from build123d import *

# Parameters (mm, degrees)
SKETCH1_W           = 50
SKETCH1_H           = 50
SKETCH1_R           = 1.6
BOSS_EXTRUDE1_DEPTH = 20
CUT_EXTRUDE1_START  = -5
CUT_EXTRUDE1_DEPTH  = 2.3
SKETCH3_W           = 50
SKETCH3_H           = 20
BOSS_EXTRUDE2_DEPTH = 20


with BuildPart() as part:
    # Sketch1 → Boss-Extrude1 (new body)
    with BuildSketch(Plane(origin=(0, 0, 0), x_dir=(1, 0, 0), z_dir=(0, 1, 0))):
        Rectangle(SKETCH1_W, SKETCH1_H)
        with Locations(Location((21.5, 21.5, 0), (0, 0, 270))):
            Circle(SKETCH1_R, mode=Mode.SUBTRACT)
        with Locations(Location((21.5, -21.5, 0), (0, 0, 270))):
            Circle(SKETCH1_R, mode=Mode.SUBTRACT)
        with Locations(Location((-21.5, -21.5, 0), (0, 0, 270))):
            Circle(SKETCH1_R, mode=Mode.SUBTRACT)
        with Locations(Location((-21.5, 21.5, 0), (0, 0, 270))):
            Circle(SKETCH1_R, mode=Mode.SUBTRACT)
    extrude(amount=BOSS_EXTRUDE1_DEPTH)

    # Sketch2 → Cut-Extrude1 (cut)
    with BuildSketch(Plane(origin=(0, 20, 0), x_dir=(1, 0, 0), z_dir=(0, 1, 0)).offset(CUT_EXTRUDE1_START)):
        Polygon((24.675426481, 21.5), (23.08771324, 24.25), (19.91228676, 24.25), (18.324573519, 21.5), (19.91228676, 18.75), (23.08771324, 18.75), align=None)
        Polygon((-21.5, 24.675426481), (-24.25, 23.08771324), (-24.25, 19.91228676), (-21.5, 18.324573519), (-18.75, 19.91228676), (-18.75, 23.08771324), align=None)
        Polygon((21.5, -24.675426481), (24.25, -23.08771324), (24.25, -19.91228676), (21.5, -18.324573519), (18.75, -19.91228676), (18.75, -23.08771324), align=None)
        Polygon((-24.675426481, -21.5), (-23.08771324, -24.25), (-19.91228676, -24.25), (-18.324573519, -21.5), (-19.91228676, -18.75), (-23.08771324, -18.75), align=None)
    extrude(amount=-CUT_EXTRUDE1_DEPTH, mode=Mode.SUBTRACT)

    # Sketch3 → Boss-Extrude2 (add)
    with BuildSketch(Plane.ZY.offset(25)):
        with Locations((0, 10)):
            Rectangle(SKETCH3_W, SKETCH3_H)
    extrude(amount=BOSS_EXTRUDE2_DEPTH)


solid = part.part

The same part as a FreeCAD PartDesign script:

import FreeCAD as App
import Part
import Sketcher

V = App.Vector
Q = App.Units.Quantity

doc = App.newDocument("Part")
body = doc.addObject("PartDesign::Body", "Body")

# Sketch on XZ plane
sketch1 = body.newObject("Sketcher::SketchObject", "Sketch")
sketch1.AttachmentSupport = (doc.getObject("XZ_Plane"), [""])
sketch1.MapMode = "FlatFace"
sketch1.addGeometry(Part.LineSegment(V(-25, -25, 0), V(-25, 25, 0)), False)
sketch1.addGeometry(Part.LineSegment(V(-25, 25, 0), V(25, 25, 0)), False)
sketch1.addGeometry(Part.LineSegment(V(25, 25, 0), V(25, -25, 0)), False)
sketch1.addGeometry(Part.LineSegment(V(25, -25, 0), V(-25, -25, 0)), False)
sketch1.addGeometry(Part.Circle(V(-21.5, 21.5, 0), V(0, 0, 1), 1.6), False)
sketch1.addGeometry(Part.Circle(V(21.5, 21.5, 0), V(0, 0, 1), 1.6), False)
sketch1.addGeometry(Part.Circle(V(-21.5, -21.5, 0), V(0, 0, 1), 1.6), False)
sketch1.addGeometry(Part.Circle(V(21.5, -21.5, 0), V(0, 0, 1), 1.6), False)
sketch1.addConstraint(Sketcher.Constraint("Coincident", 0, 2, 1, 1))
sketch1.addConstraint(Sketcher.Constraint("Coincident", 1, 2, 2, 1))
sketch1.addConstraint(Sketcher.Constraint("Coincident", 2, 2, 3, 1))
sketch1.addConstraint(Sketcher.Constraint("Coincident", 3, 2, 0, 1))
sketch1.addConstraint(Sketcher.Constraint("Vertical", 0))
sketch1.addConstraint(Sketcher.Constraint("Horizontal", 1))
sketch1.addConstraint(Sketcher.Constraint("Vertical", 2))
sketch1.addConstraint(Sketcher.Constraint("Horizontal", 3))
sketch1.addConstraint(Sketcher.Constraint("Equal", 4, 5))
sketch1.addConstraint(Sketcher.Constraint("Equal", 5, 6))
sketch1.addConstraint(Sketcher.Constraint("Equal", 6, 7))
sketch1.addConstraint(Sketcher.Constraint("Symmetric", 5, 3, 6, 3, -1, 1))
sketch1.addConstraint(Sketcher.Constraint("Symmetric", 4, 3, 7, 3, -1, 1))
sketch1.addConstraint(Sketcher.Constraint("Symmetric", 0, 2, 2, 2, -1, 1))
sketch1.addConstraint(Sketcher.Constraint("Symmetric", 4, 3, 5, 3, -2))
sketch1.addConstraint(Sketcher.Constraint("Equal", 3, 0))
sketch1.addConstraint(Sketcher.Constraint("Diameter", 4, 3.2))
sketch1.addConstraint(Sketcher.Constraint("DistanceX", 1, 1, 1, 2, 50.0))
sketch1.addConstraint(Sketcher.Constraint("DistanceX", 4, 3, 5, 3, 43.0))
sketch1.addConstraint(Sketcher.Constraint("DistanceY", 6, 3, 4, 3, 43.0))
pad1 = body.newObject("PartDesign::Pad", "Pad")
pad1.Profile = sketch1
pad1.Length = 20
pad1.Reversed = True

# Sketch on XZ plane
sketch2 = body.newObject("Sketcher::SketchObject", "Sketch001")
sketch2.AttachmentSupport = (doc.getObject("XZ_Plane"), [""])
sketch2.MapMode = "FlatFace"
sketch2.AttachmentOffset = App.Placement(V(0, 0, -15), App.Rotation())
sketch2.addGeometry(Part.LineSegment(V(24.7, -21.5, 0), V(23.1, -24.2, 0)), False)
sketch2.addGeometry(Part.LineSegment(V(23.1, -24.2, 0), V(19.9, -24.2, 0)), False)
sketch2.addGeometry(Part.LineSegment(V(19.9, -24.2, 0), V(18.3, -21.5, 0)), False)
sketch2.addGeometry(Part.LineSegment(V(18.3, -21.5, 0), V(19.9, -18.8, 0)), False)
sketch2.addGeometry(Part.LineSegment(V(19.9, -18.8, 0), V(23.1, -18.8, 0)), False)
sketch2.addGeometry(Part.LineSegment(V(23.1, -18.8, 0), V(24.7, -21.5, 0)), False)
sketch2.addGeometry(Part.LineSegment(V(-21.5, -24.7, 0), V(-24.2, -23.1, 0)), False)
sketch2.addGeometry(Part.LineSegment(V(-24.2, -23.1, 0), V(-24.2, -19.9, 0)), False)
sketch2.addGeometry(Part.LineSegment(V(-24.2, -19.9, 0), V(-21.5, -18.3, 0)), False)
sketch2.addGeometry(Part.LineSegment(V(-21.5, -18.3, 0), V(-18.8, -19.9, 0)), False)
sketch2.addGeometry(Part.LineSegment(V(-18.8, -19.9, 0), V(-18.8, -23.1, 0)), False)
sketch2.addGeometry(Part.LineSegment(V(-18.8, -23.1, 0), V(-21.5, -24.7, 0)), False)
sketch2.addGeometry(Part.LineSegment(V(21.5, 24.7, 0), V(24.2, 23.1, 0)), False)
sketch2.addGeometry(Part.LineSegment(V(24.2, 23.1, 0), V(24.2, 19.9, 0)), False)
sketch2.addGeometry(Part.LineSegment(V(24.2, 19.9, 0), V(21.5, 18.3, 0)), False)
sketch2.addGeometry(Part.LineSegment(V(21.5, 18.3, 0), V(18.8, 19.9, 0)), False)
sketch2.addGeometry(Part.LineSegment(V(18.8, 19.9, 0), V(18.8, 23.1, 0)), False)
sketch2.addGeometry(Part.LineSegment(V(18.8, 23.1, 0), V(21.5, 24.7, 0)), False)
sketch2.addGeometry(Part.LineSegment(V(-24.7, 21.5, 0), V(-23.1, 24.2, 0)), False)
sketch2.addGeometry(Part.LineSegment(V(-23.1, 24.2, 0), V(-19.9, 24.2, 0)), False)
sketch2.addGeometry(Part.LineSegment(V(-19.9, 24.2, 0), V(-18.3, 21.5, 0)), False)
sketch2.addGeometry(Part.LineSegment(V(-18.3, 21.5, 0), V(-19.9, 18.8, 0)), False)
sketch2.addGeometry(Part.LineSegment(V(-19.9, 18.8, 0), V(-23.1, 18.8, 0)), False)
sketch2.addGeometry(Part.LineSegment(V(-23.1, 18.8, 0), V(-24.7, 21.5, 0)), False)
sketch2.addConstraint(Sketcher.Constraint("Coincident", 0, 2, 1, 1))
sketch2.addConstraint(Sketcher.Constraint("Coincident", 1, 2, 2, 1))
sketch2.addConstraint(Sketcher.Constraint("Coincident", 2, 2, 3, 1))
sketch2.addConstraint(Sketcher.Constraint("Coincident", 3, 2, 4, 1))
sketch2.addConstraint(Sketcher.Constraint("Coincident", 4, 2, 5, 1))
sketch2.addConstraint(Sketcher.Constraint("Coincident", 5, 2, 0, 1))
sketch2.addConstraint(Sketcher.Constraint("Coincident", 6, 2, 7, 1))
sketch2.addConstraint(Sketcher.Constraint("Coincident", 7, 2, 8, 1))
sketch2.addConstraint(Sketcher.Constraint("Coincident", 8, 2, 9, 1))
sketch2.addConstraint(Sketcher.Constraint("Coincident", 9, 2, 10, 1))
sketch2.addConstraint(Sketcher.Constraint("Coincident", 10, 2, 11, 1))
sketch2.addConstraint(Sketcher.Constraint("Coincident", 11, 2, 6, 1))
sketch2.addConstraint(Sketcher.Constraint("Coincident", 12, 2, 13, 1))
sketch2.addConstraint(Sketcher.Constraint("Coincident", 13, 2, 14, 1))
sketch2.addConstraint(Sketcher.Constraint("Coincident", 14, 2, 15, 1))
sketch2.addConstraint(Sketcher.Constraint("Coincident", 15, 2, 16, 1))
sketch2.addConstraint(Sketcher.Constraint("Coincident", 16, 2, 17, 1))
sketch2.addConstraint(Sketcher.Constraint("Coincident", 17, 2, 12, 1))
sketch2.addConstraint(Sketcher.Constraint("Coincident", 18, 2, 19, 1))
sketch2.addConstraint(Sketcher.Constraint("Coincident", 19, 2, 20, 1))
sketch2.addConstraint(Sketcher.Constraint("Coincident", 20, 2, 21, 1))
sketch2.addConstraint(Sketcher.Constraint("Coincident", 21, 2, 22, 1))
sketch2.addConstraint(Sketcher.Constraint("Coincident", 22, 2, 23, 1))
sketch2.addConstraint(Sketcher.Constraint("Coincident", 23, 2, 18, 1))
sketch2.addConstraint(Sketcher.Constraint("Horizontal", 1))
sketch2.addConstraint(Sketcher.Constraint("Horizontal", 4))
sketch2.addConstraint(Sketcher.Constraint("Vertical", 7))
sketch2.addConstraint(Sketcher.Constraint("Vertical", 10))
sketch2.addConstraint(Sketcher.Constraint("Vertical", 13))
sketch2.addConstraint(Sketcher.Constraint("Vertical", 16))
sketch2.addConstraint(Sketcher.Constraint("Horizontal", 19))
sketch2.addConstraint(Sketcher.Constraint("Horizontal", 22))
sketch2.addConstraint(Sketcher.Constraint("Symmetric", 6, 2, 12, 2, -1, 1))
sketch2.addConstraint(Sketcher.Constraint("Symmetric", 8, 2, 14, 2, -1, 1))
sketch2.addConstraint(Sketcher.Constraint("Symmetric", 9, 2, 15, 2, -1, 1))
sketch2.addConstraint(Sketcher.Constraint("Symmetric", 11, 2, 17, 2, -1, 1))
sketch2.addConstraint(Sketcher.Constraint("Symmetric", 0, 2, 18, 2, -1, 1))
sketch2.addConstraint(Sketcher.Constraint("Symmetric", 2, 2, 20, 2, -1, 1))
sketch2.addConstraint(Sketcher.Constraint("Symmetric", 3, 2, 21, 2, -1, 1))
sketch2.addConstraint(Sketcher.Constraint("Symmetric", 5, 2, 23, 2, -1, 1))
sketch2.addConstraint(Sketcher.Constraint("Parallel", 0, 3))
sketch2.addConstraint(Sketcher.Constraint("Parallel", 2, 5))
sketch2.addConstraint(Sketcher.Constraint("Perpendicular", 3, 6))
sketch2.addConstraint(Sketcher.Constraint("Perpendicular", 5, 8))
sketch2.addConstraint(Sketcher.Constraint("Parallel", 6, 9))
sketch2.addConstraint(Sketcher.Constraint("Parallel", 8, 11))
sketch2.addConstraint(Sketcher.Constraint("Parallel", 11, 14))
sketch2.addConstraint(Sketcher.Constraint("Parallel", 14, 17))
sketch2.addConstraint(Sketcher.Constraint("Perpendicular", 17, 20))
sketch2.addConstraint(Sketcher.Constraint("Parallel", 20, 23))
sketch2.addConstraint(Sketcher.Constraint("Horizontal", 2, 2, 5, 2))
sketch2.addConstraint(Sketcher.Constraint("Horizontal", 7, 2, 9, 2))
sketch2.addConstraint(Sketcher.Constraint("Horizontal", 6, 2, 10, 2))
sketch2.addConstraint(Sketcher.Constraint("Vertical", 1, 2, 3, 2))
sketch2.addConstraint(Sketcher.Constraint("Vertical", 0, 2, 4, 2))
sketch2.addConstraint(Sketcher.Constraint("Equal", 22, 7))
sketch2.addConstraint(Sketcher.Constraint("Equal", 5, 6))
sketch2.addConstraint(Sketcher.Constraint("Angle", 0, Q("-120 deg")))
sketch2.addConstraint(Sketcher.Constraint("DistanceY", 2, 2, -1, 1, 21.5))
sketch2.addConstraint(Sketcher.Constraint("DistanceX", 8, 2, -1, 1, 21.5))
sketch2.addConstraint(Sketcher.Constraint("DistanceY", 1, 2, 3, 2, 5.5))
sketch2.addConstraint(Sketcher.Constraint("DistanceX", 1, 2, 1, 1, 3.175426))
sketch2.addConstraint(Sketcher.Constraint("DistanceX", -1, 1, 0, 2, 23.087713))
sketch2.addConstraint(Sketcher.Constraint("DistanceY", 6, 2, -1, 1, 23.087713))
pocket1 = body.newObject("PartDesign::Pocket", "Pocket")
pocket1.Profile = sketch2
pocket1.Length = 2.3
pocket1.Reversed = True

# Sketch on YZ plane
sketch3 = body.newObject("Sketcher::SketchObject", "Sketch002")
sketch3.AttachmentSupport = (doc.getObject("YZ_Plane"), [""])
sketch3.MapMode = "FlatFace"
sketch3.AttachmentOffset = App.Placement(V(0, 0, -25), App.Rotation())
sketch3.addGeometry(Part.LineSegment(V(20, -25, 0), V(0, -25, 0)), False)
sketch3.addGeometry(Part.LineSegment(V(0, -25, 0), V(0, 25, 0)), False)
sketch3.addGeometry(Part.LineSegment(V(0, 25, 0), V(20, 25, 0)), False)
sketch3.addGeometry(Part.LineSegment(V(20, 25, 0), V(20, -25, 0)), False)
sketch3.addConstraint(Sketcher.Constraint("Coincident", 0, 2, 1, 1))
sketch3.addConstraint(Sketcher.Constraint("Coincident", 1, 2, 2, 1))
sketch3.addConstraint(Sketcher.Constraint("Coincident", 2, 2, 3, 1))
sketch3.addConstraint(Sketcher.Constraint("Coincident", 3, 2, 0, 1))
sketch3.addConstraint(Sketcher.Constraint("Horizontal", 0))
sketch3.addConstraint(Sketcher.Constraint("Vertical", 1))
sketch3.addConstraint(Sketcher.Constraint("Horizontal", 2))
sketch3.addConstraint(Sketcher.Constraint("Vertical", 3))
sketch3.addConstraint(Sketcher.Constraint("Symmetric", 0, 2, 1, 2, -1, 1))
sketch3.addConstraint(Sketcher.Constraint("DistanceX", 0, 2, 0, 1, 20.0))
sketch3.addConstraint(Sketcher.Constraint("DistanceY", 1, 1, 1, 2, 50.0))
pad2 = body.newObject("PartDesign::Pad", "Pad001")
pad2.Profile = sketch3
pad2.Length = 20
pad2.Reversed = True

doc.recompute()
